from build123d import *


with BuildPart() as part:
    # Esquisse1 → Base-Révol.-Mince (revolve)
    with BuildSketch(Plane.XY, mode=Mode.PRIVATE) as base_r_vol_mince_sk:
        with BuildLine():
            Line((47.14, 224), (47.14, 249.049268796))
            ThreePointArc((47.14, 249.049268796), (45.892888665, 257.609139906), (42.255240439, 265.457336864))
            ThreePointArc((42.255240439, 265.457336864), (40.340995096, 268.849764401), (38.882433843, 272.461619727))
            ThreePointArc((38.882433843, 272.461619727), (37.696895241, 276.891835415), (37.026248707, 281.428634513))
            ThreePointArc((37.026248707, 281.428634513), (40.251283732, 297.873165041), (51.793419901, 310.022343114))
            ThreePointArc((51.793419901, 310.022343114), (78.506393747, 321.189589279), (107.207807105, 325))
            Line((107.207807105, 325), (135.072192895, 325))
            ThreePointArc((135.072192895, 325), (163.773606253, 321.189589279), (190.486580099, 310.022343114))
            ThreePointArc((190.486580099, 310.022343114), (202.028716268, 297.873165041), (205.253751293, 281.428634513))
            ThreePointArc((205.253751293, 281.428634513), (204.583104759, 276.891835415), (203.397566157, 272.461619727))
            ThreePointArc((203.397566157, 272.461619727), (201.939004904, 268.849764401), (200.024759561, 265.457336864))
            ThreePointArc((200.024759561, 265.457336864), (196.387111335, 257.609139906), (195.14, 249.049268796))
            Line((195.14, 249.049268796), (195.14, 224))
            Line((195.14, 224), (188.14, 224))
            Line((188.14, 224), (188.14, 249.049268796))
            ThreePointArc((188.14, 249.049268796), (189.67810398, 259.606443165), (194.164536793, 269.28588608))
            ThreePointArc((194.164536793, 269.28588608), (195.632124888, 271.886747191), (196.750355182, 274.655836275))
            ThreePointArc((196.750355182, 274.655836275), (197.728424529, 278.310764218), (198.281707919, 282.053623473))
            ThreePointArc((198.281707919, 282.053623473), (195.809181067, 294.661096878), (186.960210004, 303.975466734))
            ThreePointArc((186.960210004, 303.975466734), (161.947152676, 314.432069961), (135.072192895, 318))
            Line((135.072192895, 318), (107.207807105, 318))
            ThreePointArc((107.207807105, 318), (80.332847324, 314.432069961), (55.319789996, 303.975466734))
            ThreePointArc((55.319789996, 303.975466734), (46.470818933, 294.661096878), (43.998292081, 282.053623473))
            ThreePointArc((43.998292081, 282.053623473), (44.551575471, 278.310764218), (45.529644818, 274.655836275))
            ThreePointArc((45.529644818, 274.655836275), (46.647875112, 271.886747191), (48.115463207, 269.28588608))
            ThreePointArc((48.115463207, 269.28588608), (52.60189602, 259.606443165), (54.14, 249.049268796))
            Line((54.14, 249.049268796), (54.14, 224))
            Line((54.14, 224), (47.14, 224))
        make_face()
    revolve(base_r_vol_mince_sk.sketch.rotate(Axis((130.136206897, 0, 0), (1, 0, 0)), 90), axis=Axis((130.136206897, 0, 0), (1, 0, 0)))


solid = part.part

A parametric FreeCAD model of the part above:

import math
import FreeCAD as App
import Part
import Sketcher
from FreeCAD import Vector
Q = App.Units.Quantity

doc = App.newDocument("Part")
params = doc.addObject("Spreadsheet::Sheet", "Params")
for row, (alias, value) in enumerate([
    ("sketch1_radius", "37 mm"),
    ("sketch1_radius2", "23 mm"),
    ("sketch1_radius3", "33 mm"),
    ("sketch1_radius4", "103 mm"),
    ("revolution_angle", "360 deg"),
], start=1):
    params.set(f"A{row}", alias)
    params.set(f"B{row}", "=" + value)
    params.setAlias(f"B{row}", alias)

body = doc.addObject("PartDesign::Body", "Body")

sketch1 = body.newObject("Sketcher::SketchObject", "Sketch")
sketch1.AttachmentSupport = (doc.getObject("XY_Plane"), [""])
sketch1.MapMode = "FlatFace"
sketch1.addGeometry(Part.LineSegment(Vector(47, 249, 0), Vector(47, 224, 0)), False)
sketch1.addGeometry(Part.LineSegment(Vector(47, 224, 0), Vector(54, 224, 0)), False)
sketch1.addGeometry(Part.LineSegment(Vector(54, 224, 0), Vector(54, 249, 0)), False)
sketch1.addGeometry(Part.ArcOfCircle(Part.Circle(Vector(17, 249, 0), Vector(0, 0, 1), 37), math.radians(0), math.radians(33)), False)
sketch1.addGeometry(Part.ArcOfCircle(Part.Circle(Vector(67, 282, 0), Vector(0, 0, 1), 23), math.radians(-161.73), math.radians(-146.84)), False)
sketch1.addGeometry(Part.ArcOfCircle(Part.Circle(Vector(77, 285, 0), Vector(0, 0, 1), 33), math.radians(-174.88), math.radians(-161.73)), False)
sketch1.addGeometry(Part.ArcOfCircle(Part.Circle(Vector(67, 284, 0), Vector(0, 0, 1), 23), math.radians(120), math.radians(185)), False)
sketch1.addGeometry(Part.ArcOfCircle(Part.Circle(Vector(107, 215, 0), Vector(0, 0, 1), 103), math.radians(90), math.radians(120)), False)
sketch1.addGeometry(Part.LineSegment(Vector(107, 318, 0), Vector(135, 318, 0)), False)
sketch1.addGeometry(Part.ArcOfCircle(Part.Circle(Vector(135, 215, 0), Vector(0, 0, 1), 103), math.radians(60), math.radians(90)), False)
sketch1.addGeometry(Part.ArcOfCircle(Part.Circle(Vector(175, 284, 0), Vector(0, 0, 1), 23), math.radians(-5), math.radians(60)), False)
sketch1.addGeometry(Part.ArcOfCircle(Part.Circle(Vector(165, 285, 0), Vector(0, 0, 1), 33), math.radians(-18.27), math.radians(-5.12)), False)
sketch1.addGeometry(Part.ArcOfCircle(Part.Circle(Vector(175, 282, 0), Vector(0, 0, 1), 23), math.radians(-33.16), math.radians(-18.27)), False)
sketch1.addGeometry(Part.ArcOfCircle(Part.Circle(Vector(225, 249, 0), Vector(0, 0, 1), 37), math.radians(147), math.radians(180)), False)
sketch1.addGeometry(Part.LineSegment(Vector(188, 249, 0), Vector(188, 224, 0)), False)
sketch1.addGeometry(Part.LineSegment(Vector(188, 224, 0), Vector(195, 224, 0)), False)
sketch1.addGeometry(Part.LineSegment(Vector(195, 224, 0), Vector(195, 249, 0)), False)
sketch1.addGeometry(Part.ArcOfCircle(Part.Circle(Vector(225, 249, 0), Vector(0, 0, 1), 30), math.radians(147), math.radians(180)), False)
sketch1.addGeometry(Part.ArcOfCircle(Part.Circle(Vector(175, 282, 0), Vector(0, 0, 1), 30), math.radians(-33.16), math.radians(-18.27)), False)
sketch1.addGeometry(Part.ArcOfCircle(Part.Circle(Vector(165, 285, 0), Vector(0, 0, 1), 40), math.radians(-18.27), math.radians(-5.12)), False)
sketch1.addGeometry(Part.ArcOfCircle(Part.Circle(Vector(175, 284, 0), Vector(0, 0, 1), 30), math.radians(-5), math.radians(60)), False)
sketch1.addGeometry(Part.ArcOfCircle(Part.Circle(Vector(135, 215, 0), Vector(0, 0, 1), 110), math.radians(60), math.radians(90)), False)
sketch1.addGeometry(Part.LineSegment(Vector(135, 325, 0), Vector(107, 325, 0)), False)
sketch1.addGeometry(Part.ArcOfCircle(Part.Circle(Vector(107, 215, 0), Vector(0, 0, 1), 110), math.radians(90), math.radians(120)), False)
sketch1.addGeometry(Part.ArcOfCircle(Part.Circle(Vector(67, 284, 0), Vector(0, 0, 1), 30), math.radians(120), math.radians(185)), False)
sketch1.addGeometry(Part.ArcOfCircle(Part.Circle(Vector(77, 285, 0), Vector(0, 0, 1), 40), math.radians(-174.88), math.radians(-161.73)), False)
sketch1.addGeometry(Part.ArcOfCircle(Part.Circle(Vector(67, 282, 0), Vector(0, 0, 1), 30), math.radians(-161.73), math.radians(-146.84)), False)
sketch1.addGeometry(Part.ArcOfCircle(Part.Circle(Vector(17, 249, 0), Vector(0, 0, 1), 30), math.radians(0), math.radians(33)), False)
sketch1.addConstraint(Sketcher.Constraint("Coincident", 0, 2, 1, 1))
sketch1.addConstraint(Sketcher.Constraint("Coincident", 1, 2, 2, 1))
sketch1.addConstraint(Sketcher.Constraint("Tangent", 2, 2, 3, 1))
sketch1.addConstraint(Sketcher.Constraint("Tangent", 3, 2, 4, 2))
sketch1.addConstraint(Sketcher.Constraint("Tangent", 4, 1, 5, 2))
sketch1.addConstraint(Sketcher.Constraint("Tangent", 5, 1, 6, 2))
sketch1.addConstraint(Sketcher.Constraint("Tangent", 6, 1, 7, 2))
sketch1.addConstraint(Sketcher.Constraint("Tangent", 7, 1, 8, 1))
sketch1.addConstraint(Sketcher.Constraint("Tangent", 8, 2, 9, 2))
sketch1.addConstraint(Sketcher.Constraint("Tangent", 9, 1, 10, 2))
sketch1.addConstraint(Sketcher.Constraint("Tangent", 10, 1, 11, 2))
sketch1.addConstraint(Sketcher.Constraint("Tangent", 11, 1, 12, 2))
sketch1.addConstraint(Sketcher.Constraint("Tangent", 12, 1, 13, 1))
sketch1.addConstraint(Sketcher.Constraint("Tangent", 13, 2, 14, 1))
sketch1.addConstraint(Sketcher.Constraint("Coincident", 14, 2, 15, 1))
sketch1.addConstraint(Sketcher.Constraint("Coincident", 15, 2, 16, 1))
sketch1.addConstraint(Sketcher.Constraint("Tangent", 16, 2, 17, 2))
sketch1.addConstraint(Sketcher.Constraint("Tangent", 17, 1, 18, 1))
sketch1.addConstraint(Sketcher.Constraint("Tangent", 18, 2, 19, 1))
sketch1.addConstraint(Sketcher.Constraint("Tangent", 19, 2, 20, 1))
sketch1.addConstraint(Sketcher.Constraint("Tangent", 20, 2, 21, 1))
sketch1.addConstraint(Sketcher.Constraint("Tangent", 21, 2, 22, 1))
sketch1.addConstraint(Sketcher.Constraint("Tangent", 22, 2, 23, 1))
sketch1.addConstraint(Sketcher.Constraint("Tangent", 23, 2, 24, 1))
sketch1.addConstraint(Sketcher.Constraint("Tangent", 24, 2, 25, 1))
sketch1.addConstraint(Sketcher.Constraint("Tangent", 25, 2, 26, 1))
sketch1.addConstraint(Sketcher.Constraint("Tangent", 26, 2, 27, 2))
sketch1.addConstraint(Sketcher.Constraint("Tangent", 27, 1, 0, 1))
sketch1.addConstraint(Sketcher.Constraint("Vertical", 0))
sketch1.addConstraint(Sketcher.Constraint("Horizontal", 1))
sketch1.addConstraint(Sketcher.Constraint("Vertical", 2))
sketch1.addConstraint(Sketcher.Constraint("Horizontal", 8))
sketch1.addConstraint(Sketcher.Constraint("Vertical", 14))
sketch1.addConstraint(Sketcher.Constraint("Horizontal", 15))
sketch1.addConstraint(Sketcher.Constraint("Vertical", 16))
sketch1.addConstraint(Sketcher.Constraint("Horizontal", 22))
sketch1.addConstraint(Sketcher.Constraint("Coincident", 17, 3, 13, 3))
sketch1.addConstraint(Sketcher.Constraint("Coincident", 18, 3, 12, 3))
sketch1.addConstraint(Sketcher.Constraint("Coincident", 19, 3, 11, 3))
sketch1.addConstraint(Sketcher.Constraint("Coincident", 20, 3, 10, 3))
sketch1.addConstraint(Sketcher.Constraint("Coincident", 21, 3, 9, 3))
sketch1.addConstraint(Sketcher.Constraint("Coincident", 23, 3, 7, 3))
sketch1.addConstraint(Sketcher.Constraint("Coincident", 24, 3, 6, 3))
sketch1.addConstraint(Sketcher.Constraint("Coincident", 25, 3, 5, 3))
sketch1.addConstraint(Sketcher.Constraint("Coincident", 26, 3, 4, 3))
sketch1.addConstraint(Sketcher.Constraint("Coincident", 27, 3, 3, 3))
sketch1.addConstraint(Sketcher.Constraint("Equal", 4, 6))
sketch1.addConstraint(Sketcher.Constraint("Equal", 7, 9))
sketch1.addConstraint(Sketcher.Constraint("Equal", 6, 10))
sketch1.addConstraint(Sketcher.Constraint("Equal", 5, 11))
sketch1.addConstraint(Sketcher.Constraint("Equal", 10, 12))
sketch1.addConstraint(Sketcher.Constraint("Equal", 3, 13))
sketch1.addConstraint(Sketcher.Constraint("Equal", 17, 18))
sketch1.addConstraint(Sketcher.Constraint("Horizontal", 6, 3, 10, 3))
sketch1.addConstraint(Sketcher.Constraint("Horizontal", 5, 3, 11, 3))
sketch1.addConstraint(Sketcher.Constraint("Horizontal", 4, 3, 12, 3))
sketch1.addConstraint(Sketcher.Constraint("Horizontal", 3, 3, 13, 3))
sketch1.addConstraint(Sketcher.Constraint("Horizontal", 1, 2, 14, 2))
sketch1.addConstraint(Sketcher.Constraint("Radius", 3, Q("37 mm")))
sketch1.addConstraint(Sketcher.Constraint("Radius", 4, Q("23 mm")))
sketch1.addConstraint(Sketcher.Constraint("Radius", 5, Q("33 mm")))
sketch1.addConstraint(Sketcher.Constraint("Radius", 7, Q("103 mm")))
sketch1.addConstraint(Sketcher.Constraint("DistanceY", -1, 1, 5, 3, Q("285 mm")))
sketch1.addConstraint(Sketcher.Constraint("DistanceY", -1, 1, 7, 3, Q("215 mm")))
sketch1.addConstraint(Sketcher.Constraint("DistanceY", -1, 1, 0, 2, Q("224 mm")))
sketch1.addConstraint(Sketcher.Constraint("DistanceX", -1, 1, 3, 3, Q("17.14 mm")))
sketch1.addConstraint(Sketcher.Constraint("DistanceX", -1, 1, 13, 3, Q("225.14 mm")))
sketch1.addConstraint(Sketcher.Constraint("DistanceY", 0, 2, 0, 1, Q("25.049269 mm")))
sketch1.addConstraint(Sketcher.Constraint("DistanceY", 17, 1, 11, 1, Q("9.198499 mm")))
sketch1.addConstraint(Sketcher.Constraint("DistanceY", 11, 1, 19, 2, Q("6.772798 mm")))
sketch1.setExpression("Constraints[58]", "Params.sketch1_radius")
sketch1.setExpression("Constraints[59]", "Params.sketch1_radius2")
sketch1.setExpression("Constraints[60]", "Params.sketch1_radius3")
sketch1.setExpression("Constraints[61]", "Params.sketch1_radius4")
revolution = body.newObject("PartDesign::Revolution", "Revolution")
revolution.Profile = sketch1
revolution.ReferenceAxis = (sketch1, ["H_Axis"])
revolution.setExpression("Angle", "Params.revolution_angle")

doc.recompute()
